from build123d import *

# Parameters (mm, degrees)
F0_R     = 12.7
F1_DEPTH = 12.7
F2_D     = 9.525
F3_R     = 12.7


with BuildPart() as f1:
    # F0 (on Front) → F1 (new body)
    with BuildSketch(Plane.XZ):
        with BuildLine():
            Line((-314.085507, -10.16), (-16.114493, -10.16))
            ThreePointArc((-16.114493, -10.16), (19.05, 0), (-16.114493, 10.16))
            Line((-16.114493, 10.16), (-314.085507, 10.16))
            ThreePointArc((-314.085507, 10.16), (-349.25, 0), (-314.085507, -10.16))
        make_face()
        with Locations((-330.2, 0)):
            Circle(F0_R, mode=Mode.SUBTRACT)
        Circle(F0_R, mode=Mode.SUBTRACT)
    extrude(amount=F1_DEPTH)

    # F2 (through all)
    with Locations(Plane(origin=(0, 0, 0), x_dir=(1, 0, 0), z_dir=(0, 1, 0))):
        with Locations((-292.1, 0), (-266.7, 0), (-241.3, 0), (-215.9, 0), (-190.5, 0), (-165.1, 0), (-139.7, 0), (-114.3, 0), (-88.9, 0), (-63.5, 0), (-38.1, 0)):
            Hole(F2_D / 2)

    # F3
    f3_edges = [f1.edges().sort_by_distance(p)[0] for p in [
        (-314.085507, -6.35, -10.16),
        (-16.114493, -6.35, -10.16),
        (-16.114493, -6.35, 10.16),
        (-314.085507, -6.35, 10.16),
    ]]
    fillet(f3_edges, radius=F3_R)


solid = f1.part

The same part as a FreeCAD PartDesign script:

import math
import FreeCAD as App
import Part
import Sketcher

V = App.Vector
Q = App.Units.Quantity


def edges_at(feature, points):
    """Names of the edges that pass closest to the given points."""
    edges = feature.Shape.Edges
    near = lambda p: min(range(len(edges)), key=lambda i: edges[i].distToShape(Part.Vertex(*p))[0])
    return sorted({f"Edge{near(p) + 1}" for p in points})

doc = App.newDocument("Part")
params = doc.addObject("Spreadsheet::Sheet", "Params")
for row, (alias, value) in enumerate([
    ("sketch1_diameter", "1 in"),
    ("sketch1_radius", "0.75 in"),
    ("pad1_length", "0.5 in"),
    ("sketch2_diameter", "0.375 in"),
    ("hole_diameter", "0.375 in"),
    ("fillet_radius", "0.5 in"),
], start=1):
    params.set(f"A{row}", alias)
    params.set(f"B{row}", "=" + value)
    params.setAlias(f"B{row}", alias)

body = doc.addObject("PartDesign::Body", "Body")

# Sketch on XZ plane
sketch1 = body.newObject("Sketcher::SketchObject", "Sketch")
sketch1.AttachmentSupport = (doc.getObject("XZ_Plane"), [""])
sketch1.MapMode = "FlatFace"
sketch1.addGeometry([
    Part.LineSegment(V(-314, -10, 0), V(-16, -10, 0)),  # 0
    Part.ArcOfCircle(Part.Circle(V(0, 0, 0), V(0, 0, 1), 19), math.radians(-148), math.radians(148)),  # 1
    Part.LineSegment(V(-16, 10, 0), V(-314, 10, 0)),  # 2
    Part.ArcOfCircle(Part.Circle(V(-330, 0, 0), V(0, 0, 1), 19), math.radians(32), math.radians(328)),  # 3
    Part.Circle(V(-330, 0, 0), V(0, 0, 1), 13),  # 4
    Part.Circle(V(0, 0, 0), V(0, 0, 1), 13),  # 5
], False)
sketch1.addConstraint([
    Sketcher.Constraint("Coincident", 0, 2, 1, 1),
    Sketcher.Constraint("Coincident", 1, 2, 2, 1),
    Sketcher.Constraint("Coincident", 2, 2, 3, 1),
    Sketcher.Constraint("Coincident", 3, 2, 0, 1),
    Sketcher.Constraint("Horizontal", 0),
    Sketcher.Constraint("Horizontal", 2),
    Sketcher.Constraint("Coincident", 1, 3, -1, 1),
    Sketcher.Constraint("Coincident", 5, 3, -1, 1),
    Sketcher.Constraint("Coincident", 4, 3, 3, 3),
    Sketcher.Constraint("Equal", 1, 3),
    Sketcher.Constraint("Equal", 4, 5),
    Sketcher.Constraint("Symmetric", 2, 2, 3, 2, -1),
    Sketcher.Constraint("Diameter", 4, Q("1 in")),
    Sketcher.Constraint("Radius", 1, Q("0.75 in")),
    Sketcher.Constraint("DistanceX", 3, 3, -1, 1, Q("13 in")),
    Sketcher.Constraint("DistanceY", 0, 2, -1, 1, Q("0.4 in")),
])
sketch1.setExpression("Constraints[12]", "Params.sketch1_diameter")
sketch1.setExpression("Constraints[13]", "Params.sketch1_radius")
pad1 = body.newObject("PartDesign::Pad", "Pad")
pad1.Profile = sketch1
pad1.setExpression("Length", "Params.pad1_length")

# Sketch on XZ plane
sketch2 = body.newObject("Sketcher::SketchObject", "Sketch001")
sketch2.AttachmentSupport = (doc.getObject("XZ_Plane"), [""])
sketch2.MapMode = "FlatFace"
sketch2.addGeometry([
    Part.Circle(V(-292.1, 0, 0), V(0, 0, 1), 4.8),  # 0
    Part.Circle(V(-266.7, 0, 0), V(0, 0, 1), 4.8),  # 1
    Part.Circle(V(-241.3, 0, 0), V(0, 0, 1), 4.8),  # 2
    Part.Circle(V(-215.9, 0, 0), V(0, 0, 1), 4.8),  # 3
    Part.Circle(V(-190.5, 0, 0), V(0, 0, 1), 4.8),  # 4
    Part.Circle(V(-165.1, 0, 0), V(0, 0, 1), 4.8),  # 5
    Part.Circle(V(-139.7, 0, 0), V(0, 0, 1), 4.8),  # 6
    Part.Circle(V(-114.3, 0, 0), V(0, 0, 1), 4.8),  # 7
    Part.Circle(V(-88.9, 0, 0), V(0, 0, 1), 4.8),  # 8
    Part.Circle(V(-63.5, 0, 0), V(0, 0, 1), 4.8),  # 9
    Part.Circle(V(-38.1, 0, 0), V(0, 0, 1), 4.8),  # 10
], False)
sketch2.addConstraint([
    Sketcher.Constraint("Equal", 0, 1),
    Sketcher.Constraint("Equal", 1, 2),
    Sketcher.Constraint("Equal", 2, 3),
    Sketcher.Constraint("Equal", 3, 4),
    Sketcher.Constraint("Equal", 4, 5),
    Sketcher.Constraint("Equal", 5, 6),
    Sketcher.Constraint("Equal", 6, 7),
    Sketcher.Constraint("Equal", 7, 8),
    Sketcher.Constraint("Equal", 8, 9),
    Sketcher.Constraint("Equal", 9, 10),
    Sketcher.Constraint("PointOnObject", 0, 3, -1),
    Sketcher.Constraint("PointOnObject", 1, 3, -1),
    Sketcher.Constraint("PointOnObject", 2, 3, -1),
    Sketcher.Constraint("PointOnObject", 3, 3, -1),
    Sketcher.Constraint("PointOnObject", 4, 3, -1),
    Sketcher.Constraint("PointOnObject", 5, 3, -1),
    Sketcher.Constraint("PointOnObject", 6, 3, -1),
    Sketcher.Constraint("PointOnObject", 7, 3, -1),
    Sketcher.Constraint("PointOnObject", 8, 3, -1),
    Sketcher.Constraint("PointOnObject", 9, 3, -1),
    Sketcher.Constraint("PointOnObject", 10, 3, -1),
    Sketcher.Constraint("Diameter", 0, Q("0.375 in")),
    Sketcher.Constraint("DistanceX", 0, 3, 1, 3, Q("1 in")),
    Sketcher.Constraint("DistanceX", 1, 3, 2, 3, Q("1 in")),
    Sketcher.Constraint("DistanceX", 2, 3, 3, 3, Q("1 in")),
    Sketcher.Constraint("DistanceX", 3, 3, 4, 3, Q("1 in")),
    Sketcher.Constraint("DistanceX", 4, 3, 5, 3, Q("1 in")),
    Sketcher.Constraint("DistanceX", 5, 3, 6, 3, Q("1 in")),
    Sketcher.Constraint("DistanceX", 6, 3, 7, 3, Q("1 in")),
    Sketcher.Constraint("DistanceX", 7, 3, 8, 3, Q("1 in")),
    Sketcher.Constraint("DistanceX", 8, 3, 9, 3, Q("1 in")),
    Sketcher.Constraint("DistanceX", 9, 3, 10, 3, Q("1 in")),
    Sketcher.Constraint("DistanceX", 0, 3, -1, 1, Q("11.5 in")),
])
sketch2.setExpression("Constraints[21]", "Params.sketch2_diameter")
doc.recompute()
hole = body.newObject("PartDesign::Hole", "Hole")
hole.Profile = sketch2
hole.ThreadType = "None"
hole.setExpression("Diameter", "Params.hole_diameter")
hole.DepthType = "ThroughAll"
hole.Reversed = True
doc.recompute()

fillet = body.newObject("PartDesign::Fillet", "Fillet")
fillet.Base = (hole, edges_at(hole, [
    (-314.086, -6.35, -10.16),
    (-16.114, -6.35, -10.16),
    (-16.114, -6.35, 10.16),
    (-314.086, -6.35, 10.16),
]))
fillet.setExpression("Radius", "Params.fillet_radius")

doc.recompute()
